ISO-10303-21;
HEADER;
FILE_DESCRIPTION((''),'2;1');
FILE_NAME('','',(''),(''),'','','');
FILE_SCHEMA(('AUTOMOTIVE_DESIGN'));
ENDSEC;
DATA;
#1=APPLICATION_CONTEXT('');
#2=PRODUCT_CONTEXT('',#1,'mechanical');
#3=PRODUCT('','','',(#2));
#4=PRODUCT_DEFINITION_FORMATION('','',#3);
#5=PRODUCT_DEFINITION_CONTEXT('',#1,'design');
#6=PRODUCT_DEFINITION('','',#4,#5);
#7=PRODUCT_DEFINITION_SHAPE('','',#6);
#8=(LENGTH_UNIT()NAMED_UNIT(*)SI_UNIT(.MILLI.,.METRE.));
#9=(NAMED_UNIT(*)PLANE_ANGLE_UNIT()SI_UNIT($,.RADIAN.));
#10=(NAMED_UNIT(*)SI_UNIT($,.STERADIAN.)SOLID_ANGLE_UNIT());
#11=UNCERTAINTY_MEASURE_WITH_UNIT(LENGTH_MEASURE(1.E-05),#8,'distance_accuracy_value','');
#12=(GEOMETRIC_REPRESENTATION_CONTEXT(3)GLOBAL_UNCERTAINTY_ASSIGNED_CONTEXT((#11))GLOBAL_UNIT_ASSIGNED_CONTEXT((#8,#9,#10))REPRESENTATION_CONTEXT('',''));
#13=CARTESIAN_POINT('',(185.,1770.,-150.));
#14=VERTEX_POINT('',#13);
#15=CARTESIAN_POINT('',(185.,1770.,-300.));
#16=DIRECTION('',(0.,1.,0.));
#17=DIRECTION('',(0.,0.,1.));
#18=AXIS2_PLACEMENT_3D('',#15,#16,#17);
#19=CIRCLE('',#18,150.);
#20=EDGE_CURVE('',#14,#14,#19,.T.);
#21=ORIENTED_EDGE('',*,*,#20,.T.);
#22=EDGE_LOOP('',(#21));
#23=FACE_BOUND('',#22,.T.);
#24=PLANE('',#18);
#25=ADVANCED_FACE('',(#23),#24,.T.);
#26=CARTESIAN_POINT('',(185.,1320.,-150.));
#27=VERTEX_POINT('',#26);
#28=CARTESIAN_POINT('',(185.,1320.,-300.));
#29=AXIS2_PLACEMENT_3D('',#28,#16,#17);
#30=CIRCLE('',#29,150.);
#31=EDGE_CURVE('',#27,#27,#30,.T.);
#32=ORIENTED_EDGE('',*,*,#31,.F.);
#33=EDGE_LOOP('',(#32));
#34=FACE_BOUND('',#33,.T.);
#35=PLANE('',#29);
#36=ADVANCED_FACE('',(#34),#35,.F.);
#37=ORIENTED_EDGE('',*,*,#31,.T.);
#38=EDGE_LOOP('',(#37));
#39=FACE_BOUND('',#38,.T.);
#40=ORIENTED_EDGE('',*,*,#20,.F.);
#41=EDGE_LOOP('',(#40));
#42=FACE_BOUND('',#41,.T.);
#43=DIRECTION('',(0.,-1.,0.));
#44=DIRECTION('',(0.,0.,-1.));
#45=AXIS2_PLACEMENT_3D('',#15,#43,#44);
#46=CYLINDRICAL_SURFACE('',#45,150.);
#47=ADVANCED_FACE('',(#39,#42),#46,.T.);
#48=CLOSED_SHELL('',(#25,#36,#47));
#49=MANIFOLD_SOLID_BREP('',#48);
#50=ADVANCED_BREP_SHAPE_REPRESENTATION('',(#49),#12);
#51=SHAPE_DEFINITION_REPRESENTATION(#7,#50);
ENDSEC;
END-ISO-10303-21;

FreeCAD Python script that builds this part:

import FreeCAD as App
import Part
import Sketcher

V = App.Vector

doc = App.newDocument("Part")
body = doc.addObject("PartDesign::Body", "Body")

# Sketch on XZ plane
sketch1 = body.newObject("Sketcher::SketchObject", "Sketch")
sketch1.AttachmentSupport = (doc.getObject("XZ_Plane"), [""])
sketch1.MapMode = "FlatFace"
sketch1.AttachmentOffset = App.Placement(V(0, 0, -1320), App.Rotation())
sketch1.addGeometry(Part.Circle(V(185, -300, 0), V(0, 0, 1), 150), False)
sketch1.addConstraint([
    Sketcher.Constraint("Diameter", 0, 300.0),
    Sketcher.Constraint("DistanceX", -1, 1, 0, 3, 185.0),
    Sketcher.Constraint("DistanceY", 0, 3, -1, 1, 300.0),
])
pad1 = body.newObject("PartDesign::Pad", "Pad")
pad1.Profile = sketch1
pad1.Length = 450
pad1.Reversed = True

doc.recompute()
